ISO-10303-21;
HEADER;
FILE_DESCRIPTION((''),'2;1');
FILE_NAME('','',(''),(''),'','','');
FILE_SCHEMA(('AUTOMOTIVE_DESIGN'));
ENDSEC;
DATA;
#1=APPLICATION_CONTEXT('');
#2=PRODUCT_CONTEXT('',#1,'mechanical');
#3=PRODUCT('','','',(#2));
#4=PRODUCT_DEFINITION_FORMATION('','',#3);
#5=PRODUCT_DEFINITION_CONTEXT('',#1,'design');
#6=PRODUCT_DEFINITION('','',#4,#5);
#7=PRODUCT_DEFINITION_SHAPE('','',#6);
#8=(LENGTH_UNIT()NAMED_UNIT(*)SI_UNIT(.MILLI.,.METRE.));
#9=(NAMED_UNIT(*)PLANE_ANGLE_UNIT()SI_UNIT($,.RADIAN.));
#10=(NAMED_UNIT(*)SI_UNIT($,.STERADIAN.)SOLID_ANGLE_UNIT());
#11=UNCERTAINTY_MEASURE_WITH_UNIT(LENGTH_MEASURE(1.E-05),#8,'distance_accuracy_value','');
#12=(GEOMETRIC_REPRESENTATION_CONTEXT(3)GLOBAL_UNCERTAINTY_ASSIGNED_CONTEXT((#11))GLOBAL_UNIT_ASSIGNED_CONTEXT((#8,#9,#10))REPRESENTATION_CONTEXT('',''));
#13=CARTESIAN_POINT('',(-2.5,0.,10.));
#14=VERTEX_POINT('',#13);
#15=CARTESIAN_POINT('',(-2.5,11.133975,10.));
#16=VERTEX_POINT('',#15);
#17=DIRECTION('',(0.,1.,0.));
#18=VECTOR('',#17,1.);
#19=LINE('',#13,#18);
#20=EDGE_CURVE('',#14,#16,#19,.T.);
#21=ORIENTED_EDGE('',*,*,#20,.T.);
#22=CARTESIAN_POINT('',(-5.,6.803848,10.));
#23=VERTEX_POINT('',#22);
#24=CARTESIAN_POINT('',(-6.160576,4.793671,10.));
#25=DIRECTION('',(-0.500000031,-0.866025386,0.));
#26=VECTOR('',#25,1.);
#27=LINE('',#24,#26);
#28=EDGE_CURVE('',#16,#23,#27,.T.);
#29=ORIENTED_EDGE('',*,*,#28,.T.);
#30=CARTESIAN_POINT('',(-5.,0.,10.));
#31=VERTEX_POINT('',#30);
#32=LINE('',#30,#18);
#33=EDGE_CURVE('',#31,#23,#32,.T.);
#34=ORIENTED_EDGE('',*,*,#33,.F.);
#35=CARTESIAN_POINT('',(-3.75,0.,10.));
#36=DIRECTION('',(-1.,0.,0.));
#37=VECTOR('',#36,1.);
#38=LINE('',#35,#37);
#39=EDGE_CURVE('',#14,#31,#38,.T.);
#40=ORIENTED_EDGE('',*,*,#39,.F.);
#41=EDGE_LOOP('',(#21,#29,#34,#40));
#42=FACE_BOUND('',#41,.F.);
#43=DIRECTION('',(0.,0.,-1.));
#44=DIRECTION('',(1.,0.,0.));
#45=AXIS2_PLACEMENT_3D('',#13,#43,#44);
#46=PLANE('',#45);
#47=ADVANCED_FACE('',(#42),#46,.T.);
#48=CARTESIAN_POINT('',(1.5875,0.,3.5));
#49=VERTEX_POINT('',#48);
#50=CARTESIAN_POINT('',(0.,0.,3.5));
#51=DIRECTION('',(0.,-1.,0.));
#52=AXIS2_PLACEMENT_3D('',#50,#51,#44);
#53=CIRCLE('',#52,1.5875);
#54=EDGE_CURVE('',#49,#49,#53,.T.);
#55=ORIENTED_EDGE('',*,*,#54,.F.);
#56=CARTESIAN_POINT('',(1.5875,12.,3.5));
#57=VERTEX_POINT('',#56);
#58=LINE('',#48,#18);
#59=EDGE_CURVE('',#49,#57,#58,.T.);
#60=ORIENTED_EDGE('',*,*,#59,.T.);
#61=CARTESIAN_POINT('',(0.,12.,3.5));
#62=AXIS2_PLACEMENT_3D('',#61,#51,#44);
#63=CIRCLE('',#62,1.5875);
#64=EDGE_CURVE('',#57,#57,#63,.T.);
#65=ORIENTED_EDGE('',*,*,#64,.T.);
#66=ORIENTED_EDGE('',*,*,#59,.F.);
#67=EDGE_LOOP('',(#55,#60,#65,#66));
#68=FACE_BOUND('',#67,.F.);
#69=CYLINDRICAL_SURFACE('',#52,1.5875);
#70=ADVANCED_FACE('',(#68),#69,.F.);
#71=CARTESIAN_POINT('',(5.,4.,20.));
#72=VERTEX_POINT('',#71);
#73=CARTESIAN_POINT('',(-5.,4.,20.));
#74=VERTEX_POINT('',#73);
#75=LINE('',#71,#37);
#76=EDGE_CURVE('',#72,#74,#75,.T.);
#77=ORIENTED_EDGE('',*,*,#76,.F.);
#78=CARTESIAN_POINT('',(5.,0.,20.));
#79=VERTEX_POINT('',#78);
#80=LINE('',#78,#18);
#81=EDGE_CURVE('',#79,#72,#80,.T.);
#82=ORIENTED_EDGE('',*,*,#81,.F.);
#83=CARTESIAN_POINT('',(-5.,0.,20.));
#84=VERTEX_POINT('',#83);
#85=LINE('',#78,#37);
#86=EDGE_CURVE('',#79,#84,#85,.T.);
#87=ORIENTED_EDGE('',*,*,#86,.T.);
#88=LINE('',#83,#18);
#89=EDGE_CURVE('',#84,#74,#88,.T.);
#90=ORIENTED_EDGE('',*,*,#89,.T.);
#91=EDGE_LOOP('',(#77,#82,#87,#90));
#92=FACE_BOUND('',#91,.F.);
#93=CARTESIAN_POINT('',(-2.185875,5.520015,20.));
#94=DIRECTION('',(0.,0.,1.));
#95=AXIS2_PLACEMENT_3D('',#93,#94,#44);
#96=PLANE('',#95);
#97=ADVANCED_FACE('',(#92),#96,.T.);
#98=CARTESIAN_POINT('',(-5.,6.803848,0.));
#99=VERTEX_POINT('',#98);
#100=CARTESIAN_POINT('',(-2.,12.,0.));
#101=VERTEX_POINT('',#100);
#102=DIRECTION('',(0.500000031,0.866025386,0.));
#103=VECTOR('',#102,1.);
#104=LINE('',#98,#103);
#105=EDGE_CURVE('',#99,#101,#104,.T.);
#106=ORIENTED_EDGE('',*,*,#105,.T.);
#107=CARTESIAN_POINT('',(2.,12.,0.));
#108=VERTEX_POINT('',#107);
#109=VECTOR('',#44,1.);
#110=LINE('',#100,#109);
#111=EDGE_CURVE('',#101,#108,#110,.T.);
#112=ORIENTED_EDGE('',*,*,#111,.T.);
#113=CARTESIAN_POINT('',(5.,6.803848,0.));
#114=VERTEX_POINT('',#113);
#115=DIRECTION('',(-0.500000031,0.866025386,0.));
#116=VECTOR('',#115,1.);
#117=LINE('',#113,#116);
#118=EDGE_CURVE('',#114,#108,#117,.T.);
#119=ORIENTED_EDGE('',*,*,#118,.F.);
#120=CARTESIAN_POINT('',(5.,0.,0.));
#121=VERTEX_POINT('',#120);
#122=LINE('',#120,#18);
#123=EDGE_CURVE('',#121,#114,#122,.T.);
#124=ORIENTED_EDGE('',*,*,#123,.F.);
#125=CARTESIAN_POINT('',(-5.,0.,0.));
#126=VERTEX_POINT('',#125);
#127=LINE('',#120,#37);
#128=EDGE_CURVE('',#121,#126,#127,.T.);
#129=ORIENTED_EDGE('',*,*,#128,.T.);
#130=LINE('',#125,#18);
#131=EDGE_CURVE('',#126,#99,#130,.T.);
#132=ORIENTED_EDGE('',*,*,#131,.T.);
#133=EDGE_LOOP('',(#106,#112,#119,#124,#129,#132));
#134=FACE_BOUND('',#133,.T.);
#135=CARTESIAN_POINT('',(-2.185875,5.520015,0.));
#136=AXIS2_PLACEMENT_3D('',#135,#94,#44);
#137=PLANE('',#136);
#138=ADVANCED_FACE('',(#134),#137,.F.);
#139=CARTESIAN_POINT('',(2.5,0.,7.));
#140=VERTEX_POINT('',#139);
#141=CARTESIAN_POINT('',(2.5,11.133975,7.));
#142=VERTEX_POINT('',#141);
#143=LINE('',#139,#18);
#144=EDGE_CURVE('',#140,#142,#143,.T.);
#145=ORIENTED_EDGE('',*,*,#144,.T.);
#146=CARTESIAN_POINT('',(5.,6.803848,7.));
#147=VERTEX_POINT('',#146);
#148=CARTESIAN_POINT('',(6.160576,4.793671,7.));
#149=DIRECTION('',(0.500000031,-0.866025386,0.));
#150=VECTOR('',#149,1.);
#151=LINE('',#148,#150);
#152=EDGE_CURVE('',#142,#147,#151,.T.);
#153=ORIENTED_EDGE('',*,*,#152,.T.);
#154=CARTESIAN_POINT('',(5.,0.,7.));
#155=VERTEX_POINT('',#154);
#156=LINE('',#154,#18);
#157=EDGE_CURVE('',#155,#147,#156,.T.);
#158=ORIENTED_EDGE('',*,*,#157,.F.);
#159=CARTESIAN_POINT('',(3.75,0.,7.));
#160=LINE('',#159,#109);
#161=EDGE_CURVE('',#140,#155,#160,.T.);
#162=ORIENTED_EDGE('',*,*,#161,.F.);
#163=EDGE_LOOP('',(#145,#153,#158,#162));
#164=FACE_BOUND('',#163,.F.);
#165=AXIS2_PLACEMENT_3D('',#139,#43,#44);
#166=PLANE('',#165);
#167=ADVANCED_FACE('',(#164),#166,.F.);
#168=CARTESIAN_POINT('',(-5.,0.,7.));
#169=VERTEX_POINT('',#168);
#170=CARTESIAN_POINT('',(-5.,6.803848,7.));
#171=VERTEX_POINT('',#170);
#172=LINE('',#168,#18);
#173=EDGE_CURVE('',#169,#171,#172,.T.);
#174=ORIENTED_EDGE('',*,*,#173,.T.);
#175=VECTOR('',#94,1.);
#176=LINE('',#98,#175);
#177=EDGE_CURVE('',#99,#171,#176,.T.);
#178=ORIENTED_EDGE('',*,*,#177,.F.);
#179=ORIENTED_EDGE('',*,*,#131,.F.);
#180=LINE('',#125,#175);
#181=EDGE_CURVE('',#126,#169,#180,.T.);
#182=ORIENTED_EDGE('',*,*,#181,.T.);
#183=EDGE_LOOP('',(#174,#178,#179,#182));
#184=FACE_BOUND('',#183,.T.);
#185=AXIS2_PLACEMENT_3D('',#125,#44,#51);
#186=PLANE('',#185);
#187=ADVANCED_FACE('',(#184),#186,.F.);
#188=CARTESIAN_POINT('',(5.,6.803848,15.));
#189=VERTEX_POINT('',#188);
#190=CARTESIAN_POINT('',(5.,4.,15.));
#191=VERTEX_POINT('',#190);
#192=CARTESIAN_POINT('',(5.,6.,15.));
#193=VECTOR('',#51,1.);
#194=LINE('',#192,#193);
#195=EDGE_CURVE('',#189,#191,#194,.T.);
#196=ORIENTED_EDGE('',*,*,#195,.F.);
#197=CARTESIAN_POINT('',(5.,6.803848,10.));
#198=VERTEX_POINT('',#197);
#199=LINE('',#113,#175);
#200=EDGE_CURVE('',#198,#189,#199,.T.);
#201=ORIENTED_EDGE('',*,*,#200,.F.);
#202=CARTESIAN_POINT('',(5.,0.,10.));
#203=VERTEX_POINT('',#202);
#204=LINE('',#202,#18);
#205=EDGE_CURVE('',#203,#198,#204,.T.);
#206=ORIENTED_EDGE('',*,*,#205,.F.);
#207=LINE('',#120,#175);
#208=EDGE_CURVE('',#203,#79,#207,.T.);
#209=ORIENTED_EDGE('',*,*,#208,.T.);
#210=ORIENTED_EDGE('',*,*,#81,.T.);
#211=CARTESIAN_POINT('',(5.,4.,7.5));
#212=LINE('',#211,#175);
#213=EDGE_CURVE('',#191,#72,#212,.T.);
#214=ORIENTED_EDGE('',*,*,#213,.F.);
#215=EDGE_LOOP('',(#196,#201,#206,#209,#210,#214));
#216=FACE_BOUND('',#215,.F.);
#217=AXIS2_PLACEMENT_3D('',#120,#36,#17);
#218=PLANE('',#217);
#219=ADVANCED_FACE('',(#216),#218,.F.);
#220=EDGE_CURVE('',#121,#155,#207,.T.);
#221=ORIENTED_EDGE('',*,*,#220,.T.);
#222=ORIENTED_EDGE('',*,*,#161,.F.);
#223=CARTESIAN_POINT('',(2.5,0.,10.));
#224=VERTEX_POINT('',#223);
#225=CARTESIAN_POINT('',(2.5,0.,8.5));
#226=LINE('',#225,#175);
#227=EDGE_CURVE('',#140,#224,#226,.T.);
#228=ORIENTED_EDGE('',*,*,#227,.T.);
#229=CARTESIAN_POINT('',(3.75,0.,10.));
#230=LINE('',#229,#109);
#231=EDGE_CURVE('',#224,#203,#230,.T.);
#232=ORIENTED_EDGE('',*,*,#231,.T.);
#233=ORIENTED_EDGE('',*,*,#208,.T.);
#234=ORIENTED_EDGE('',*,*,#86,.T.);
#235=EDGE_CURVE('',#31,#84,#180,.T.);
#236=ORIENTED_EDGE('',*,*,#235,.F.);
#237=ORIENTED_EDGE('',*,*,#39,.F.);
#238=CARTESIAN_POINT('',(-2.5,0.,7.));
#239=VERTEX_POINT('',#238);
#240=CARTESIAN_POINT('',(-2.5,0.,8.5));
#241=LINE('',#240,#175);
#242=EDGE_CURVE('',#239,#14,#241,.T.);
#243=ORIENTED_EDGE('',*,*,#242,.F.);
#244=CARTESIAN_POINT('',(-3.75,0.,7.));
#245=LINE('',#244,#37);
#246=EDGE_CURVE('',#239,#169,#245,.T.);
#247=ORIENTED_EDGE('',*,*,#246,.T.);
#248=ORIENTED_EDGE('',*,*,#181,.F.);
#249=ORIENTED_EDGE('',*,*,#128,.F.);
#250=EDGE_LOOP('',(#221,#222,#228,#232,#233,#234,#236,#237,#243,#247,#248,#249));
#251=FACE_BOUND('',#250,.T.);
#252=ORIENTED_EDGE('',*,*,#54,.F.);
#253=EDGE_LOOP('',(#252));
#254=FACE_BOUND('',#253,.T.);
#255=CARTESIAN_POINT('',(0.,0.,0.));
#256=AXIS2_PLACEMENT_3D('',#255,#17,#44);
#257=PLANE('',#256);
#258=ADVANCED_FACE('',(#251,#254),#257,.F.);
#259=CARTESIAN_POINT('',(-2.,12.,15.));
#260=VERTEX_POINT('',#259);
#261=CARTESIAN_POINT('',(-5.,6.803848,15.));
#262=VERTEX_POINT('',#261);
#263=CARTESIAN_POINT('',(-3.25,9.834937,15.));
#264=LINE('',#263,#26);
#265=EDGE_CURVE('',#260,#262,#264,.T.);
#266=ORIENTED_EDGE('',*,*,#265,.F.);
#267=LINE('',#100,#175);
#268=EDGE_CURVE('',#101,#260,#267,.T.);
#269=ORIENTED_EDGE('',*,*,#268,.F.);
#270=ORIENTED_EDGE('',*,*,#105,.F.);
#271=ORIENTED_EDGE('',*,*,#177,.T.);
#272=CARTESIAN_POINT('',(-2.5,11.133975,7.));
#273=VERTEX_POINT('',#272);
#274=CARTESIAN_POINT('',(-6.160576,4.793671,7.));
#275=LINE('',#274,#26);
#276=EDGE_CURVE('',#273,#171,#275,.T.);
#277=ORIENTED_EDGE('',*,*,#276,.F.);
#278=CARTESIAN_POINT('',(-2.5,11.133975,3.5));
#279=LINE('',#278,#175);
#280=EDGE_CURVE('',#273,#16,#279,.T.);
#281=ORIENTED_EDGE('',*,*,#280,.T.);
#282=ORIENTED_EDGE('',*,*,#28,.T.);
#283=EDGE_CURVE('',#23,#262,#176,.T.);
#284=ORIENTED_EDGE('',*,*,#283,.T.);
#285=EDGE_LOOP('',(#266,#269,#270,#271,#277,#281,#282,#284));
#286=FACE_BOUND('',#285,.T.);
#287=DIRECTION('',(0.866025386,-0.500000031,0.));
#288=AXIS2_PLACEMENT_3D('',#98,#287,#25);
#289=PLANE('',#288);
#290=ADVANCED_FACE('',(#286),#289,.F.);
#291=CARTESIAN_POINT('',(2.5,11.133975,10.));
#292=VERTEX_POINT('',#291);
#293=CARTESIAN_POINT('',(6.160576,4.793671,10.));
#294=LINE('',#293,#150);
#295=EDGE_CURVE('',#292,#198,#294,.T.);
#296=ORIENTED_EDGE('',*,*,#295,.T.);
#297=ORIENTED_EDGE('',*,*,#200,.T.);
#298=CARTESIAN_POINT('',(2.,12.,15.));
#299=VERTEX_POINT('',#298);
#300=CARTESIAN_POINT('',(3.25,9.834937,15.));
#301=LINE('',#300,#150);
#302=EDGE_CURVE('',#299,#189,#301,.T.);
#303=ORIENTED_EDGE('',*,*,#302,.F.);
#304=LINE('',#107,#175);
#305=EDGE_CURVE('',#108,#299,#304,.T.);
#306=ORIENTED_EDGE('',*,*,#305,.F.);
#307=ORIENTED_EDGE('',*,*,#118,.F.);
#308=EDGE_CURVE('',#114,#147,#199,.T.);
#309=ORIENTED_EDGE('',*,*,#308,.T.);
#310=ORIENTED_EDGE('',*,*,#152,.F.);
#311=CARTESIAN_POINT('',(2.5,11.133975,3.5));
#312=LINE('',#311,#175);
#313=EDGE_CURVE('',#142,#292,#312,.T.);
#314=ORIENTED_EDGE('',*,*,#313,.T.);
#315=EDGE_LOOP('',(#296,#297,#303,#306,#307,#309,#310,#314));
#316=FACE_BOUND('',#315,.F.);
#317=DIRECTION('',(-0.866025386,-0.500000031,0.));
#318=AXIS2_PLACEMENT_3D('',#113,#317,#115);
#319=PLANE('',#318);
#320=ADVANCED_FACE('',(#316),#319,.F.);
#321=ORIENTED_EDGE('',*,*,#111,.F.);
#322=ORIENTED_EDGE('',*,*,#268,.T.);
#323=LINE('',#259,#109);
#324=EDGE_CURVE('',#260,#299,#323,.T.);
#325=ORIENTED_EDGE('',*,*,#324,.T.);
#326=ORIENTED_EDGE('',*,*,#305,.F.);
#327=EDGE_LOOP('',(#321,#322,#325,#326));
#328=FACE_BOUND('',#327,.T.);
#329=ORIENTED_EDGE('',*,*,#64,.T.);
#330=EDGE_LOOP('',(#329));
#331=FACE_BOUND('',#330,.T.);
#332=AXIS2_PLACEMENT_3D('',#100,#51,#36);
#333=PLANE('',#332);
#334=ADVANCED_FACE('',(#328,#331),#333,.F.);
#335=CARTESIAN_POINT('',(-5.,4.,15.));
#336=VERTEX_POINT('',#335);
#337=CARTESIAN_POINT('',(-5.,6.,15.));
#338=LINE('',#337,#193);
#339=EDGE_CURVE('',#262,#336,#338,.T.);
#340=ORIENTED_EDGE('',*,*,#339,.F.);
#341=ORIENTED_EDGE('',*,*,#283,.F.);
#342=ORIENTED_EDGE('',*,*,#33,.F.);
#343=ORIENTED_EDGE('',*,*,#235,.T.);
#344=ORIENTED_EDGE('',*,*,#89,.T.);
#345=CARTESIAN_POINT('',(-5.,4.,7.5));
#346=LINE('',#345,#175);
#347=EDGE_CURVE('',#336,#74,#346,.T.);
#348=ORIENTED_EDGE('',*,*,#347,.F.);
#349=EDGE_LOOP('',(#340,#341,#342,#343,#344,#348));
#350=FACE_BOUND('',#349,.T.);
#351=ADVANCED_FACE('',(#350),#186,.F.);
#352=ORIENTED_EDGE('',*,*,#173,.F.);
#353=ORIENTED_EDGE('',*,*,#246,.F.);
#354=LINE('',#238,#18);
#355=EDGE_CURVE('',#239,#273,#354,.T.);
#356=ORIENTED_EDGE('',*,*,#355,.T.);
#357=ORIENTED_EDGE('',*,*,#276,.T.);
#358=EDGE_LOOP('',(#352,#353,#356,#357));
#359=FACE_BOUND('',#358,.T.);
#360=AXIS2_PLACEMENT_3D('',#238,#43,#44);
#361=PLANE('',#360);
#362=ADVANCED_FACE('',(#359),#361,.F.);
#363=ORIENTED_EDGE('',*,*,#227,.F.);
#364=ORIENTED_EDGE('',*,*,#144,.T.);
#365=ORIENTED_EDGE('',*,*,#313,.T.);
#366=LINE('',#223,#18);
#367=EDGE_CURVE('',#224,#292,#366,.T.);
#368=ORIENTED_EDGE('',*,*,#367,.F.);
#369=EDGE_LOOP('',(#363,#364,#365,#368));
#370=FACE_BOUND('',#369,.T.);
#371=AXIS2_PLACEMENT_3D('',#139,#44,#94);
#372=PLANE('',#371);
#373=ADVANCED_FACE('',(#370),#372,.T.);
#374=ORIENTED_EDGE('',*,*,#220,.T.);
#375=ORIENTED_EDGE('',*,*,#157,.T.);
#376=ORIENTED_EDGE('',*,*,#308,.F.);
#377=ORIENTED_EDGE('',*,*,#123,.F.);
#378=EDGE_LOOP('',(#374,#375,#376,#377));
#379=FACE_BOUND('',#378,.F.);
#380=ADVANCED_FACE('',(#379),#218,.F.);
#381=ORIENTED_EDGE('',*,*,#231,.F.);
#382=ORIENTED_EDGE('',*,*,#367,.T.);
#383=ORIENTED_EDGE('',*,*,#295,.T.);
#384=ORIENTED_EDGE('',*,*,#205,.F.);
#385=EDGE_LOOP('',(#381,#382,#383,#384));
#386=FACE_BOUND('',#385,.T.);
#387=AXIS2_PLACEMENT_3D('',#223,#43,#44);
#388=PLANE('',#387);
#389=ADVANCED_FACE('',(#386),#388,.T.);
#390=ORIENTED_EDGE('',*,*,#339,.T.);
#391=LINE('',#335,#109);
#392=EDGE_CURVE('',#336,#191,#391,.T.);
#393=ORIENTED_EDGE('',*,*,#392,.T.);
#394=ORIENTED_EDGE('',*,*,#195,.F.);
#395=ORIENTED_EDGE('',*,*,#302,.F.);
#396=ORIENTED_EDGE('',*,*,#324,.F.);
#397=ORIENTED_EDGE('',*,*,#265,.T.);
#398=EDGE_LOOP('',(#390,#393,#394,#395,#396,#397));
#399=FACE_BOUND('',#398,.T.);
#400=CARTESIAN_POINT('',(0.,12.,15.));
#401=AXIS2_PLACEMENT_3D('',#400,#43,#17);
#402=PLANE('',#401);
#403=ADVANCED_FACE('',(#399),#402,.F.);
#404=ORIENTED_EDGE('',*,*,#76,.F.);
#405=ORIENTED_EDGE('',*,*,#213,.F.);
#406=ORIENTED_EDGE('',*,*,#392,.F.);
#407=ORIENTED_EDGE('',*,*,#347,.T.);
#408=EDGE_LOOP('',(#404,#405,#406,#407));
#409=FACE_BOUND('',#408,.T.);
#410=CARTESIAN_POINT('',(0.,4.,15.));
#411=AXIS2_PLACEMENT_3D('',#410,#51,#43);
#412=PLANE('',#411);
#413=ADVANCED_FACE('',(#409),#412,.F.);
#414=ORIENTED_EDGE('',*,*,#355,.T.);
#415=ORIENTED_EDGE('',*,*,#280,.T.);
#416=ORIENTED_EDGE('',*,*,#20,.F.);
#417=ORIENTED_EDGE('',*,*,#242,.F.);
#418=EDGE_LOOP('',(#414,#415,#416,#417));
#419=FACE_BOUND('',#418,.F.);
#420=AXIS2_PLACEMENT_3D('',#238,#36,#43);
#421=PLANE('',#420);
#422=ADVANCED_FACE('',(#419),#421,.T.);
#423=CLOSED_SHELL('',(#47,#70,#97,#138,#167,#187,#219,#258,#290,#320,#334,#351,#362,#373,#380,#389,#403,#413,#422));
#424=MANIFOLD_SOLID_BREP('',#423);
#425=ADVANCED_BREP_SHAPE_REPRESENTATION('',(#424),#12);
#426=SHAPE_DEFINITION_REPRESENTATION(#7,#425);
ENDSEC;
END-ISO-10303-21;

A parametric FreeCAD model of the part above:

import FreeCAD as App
import Part
import Sketcher

V = App.Vector
Q = App.Units.Quantity

doc = App.newDocument("Part")
body = doc.addObject("PartDesign::Body", "Body")

# Sketch on XY plane
sketch1 = doc.addObject("Sketcher::SketchObject", "Sketch")
body.addObject(sketch1)
sketch1.AttachmentSupport = (doc.XY_Plane, [""])
sketch1.MapMode = "FlatFace"
sketch1.addGeometry(Part.LineSegment(V(0, 12, 0), V(0, 0, 0)), False)
sketch1.addGeometry(Part.LineSegment(V(0, 0, 0), V(5, 0, 0)), False)
sketch1.addGeometry(Part.LineSegment(V(5, 0, 0), V(5, 6.8, 0)), False)
sketch1.addGeometry(Part.LineSegment(V(5, 6.8, 0), V(2, 12, 0)), False)
sketch1.addGeometry(Part.LineSegment(V(2, 12, 0), V(0, 12, 0)), False)
sketch1.addConstraint(Sketcher.Constraint("Coincident", 0, 2, 1, 1))
sketch1.addConstraint(Sketcher.Constraint("Coincident", 1, 2, 2, 1))
sketch1.addConstraint(Sketcher.Constraint("Coincident", 2, 2, 3, 1))
sketch1.addConstraint(Sketcher.Constraint("Coincident", 3, 2, 4, 1))
sketch1.addConstraint(Sketcher.Constraint("Coincident", 4, 2, 0, 1))
sketch1.addConstraint(Sketcher.Constraint("Vertical", 0))
sketch1.addConstraint(Sketcher.Constraint("Horizontal", 1))
sketch1.addConstraint(Sketcher.Constraint("Vertical", 2))
sketch1.addConstraint(Sketcher.Constraint("Horizontal", 4))
sketch1.addConstraint(Sketcher.Constraint("Coincident", 0, 2, -1, 1))
sketch1.addConstraint(Sketcher.Constraint("DistanceX", 1, 1, 1, 2, Q("5 mm")))
sketch1.addConstraint(Sketcher.Constraint("DistanceX", 4, 2, 4, 1, Q("2 mm")))
sketch1.addConstraint(Sketcher.Constraint("DistanceY", 0, 2, 0, 1, Q("12 mm")))
sketch1.addConstraint(Sketcher.Constraint("Angle", 3, Q("120.000002 deg")))
pad1 = doc.addObject("PartDesign::Pad", "Pad")
body.addObject(pad1)
pad1.Profile = sketch1
pad1.Length = 20

# Sketch on YZ plane
sketch2 = doc.addObject("Sketcher::SketchObject", "Sketch001")
body.addObject(sketch2)
sketch2.AttachmentSupport = (doc.YZ_Plane, [""])
sketch2.MapMode = "FlatFace"
sketch2.addGeometry(Part.LineSegment(V(12, 20, 0), V(12, 15, 0)), False)
sketch2.addGeometry(Part.LineSegment(V(12, 15, 0), V(4, 15, 0)), False)
sketch2.addGeometry(Part.LineSegment(V(4, 15, 0), V(4, 20, 0)), False)
sketch2.addGeometry(Part.LineSegment(V(4, 20, 0), V(12, 20, 0)), False)
sketch2.addConstraint(Sketcher.Constraint("Coincident", 0, 2, 1, 1))
sketch2.addConstraint(Sketcher.Constraint("Coincident", 1, 2, 2, 1))
sketch2.addConstraint(Sketcher.Constraint("Coincident", 2, 2, 3, 1))
sketch2.addConstraint(Sketcher.Constraint("Coincident", 3, 2, 0, 1))
sketch2.addConstraint(Sketcher.Constraint("Vertical", 0))
sketch2.addConstraint(Sketcher.Constraint("Horizontal", 1))
sketch2.addConstraint(Sketcher.Constraint("Vertical", 2))
sketch2.addConstraint(Sketcher.Constraint("Horizontal", 3))
sketch2.addConstraint(Sketcher.Constraint("DistanceX", 1, 2, 1, 1, Q("8 mm")))
sketch2.addConstraint(Sketcher.Constraint("DistanceY", 0, 2, 0, 1, Q("5 mm")))
sketch2.addConstraint(Sketcher.Constraint("DistanceX", -1, 1, 0, 2, Q("12 mm")))
sketch2.addConstraint(Sketcher.Constraint("DistanceY", -1, 1, 0, 2, Q("15 mm")))
pocket1 = doc.addObject("PartDesign::Pocket", "Pocket")
body.addObject(pocket1)
pocket1.Profile = sketch2
pocket1.Length = 25.4
pocket1.Reversed = True

# Sketch on XZ plane
sketch3 = doc.addObject("Sketcher::SketchObject", "Sketch002")
body.addObject(sketch3)
sketch3.AttachmentSupport = (doc.XZ_Plane, [""])
sketch3.MapMode = "FlatFace"
sketch3.addGeometry(Part.LineSegment(V(2.5, 10, 0), V(2.5, 7, 0)), False)
sketch3.addGeometry(Part.LineSegment(V(2.5, 7, 0), V(5, 7, 0)), False)
sketch3.addGeometry(Part.LineSegment(V(5, 7, 0), V(5, 10, 0)), False)
sketch3.addGeometry(Part.LineSegment(V(5, 10, 0), V(2.5, 10, 0)), False)
sketch3.addConstraint(Sketcher.Constraint("Coincident", 0, 2, 1, 1))
sketch3.addConstraint(Sketcher.Constraint("Coincident", 1, 2, 2, 1))
sketch3.addConstraint(Sketcher.Constraint("Coincident", 2, 2, 3, 1))
sketch3.addConstraint(Sketcher.Constraint("Coincident", 3, 2, 0, 1))
sketch3.addConstraint(Sketcher.Constraint("Vertical", 0))
sketch3.addConstraint(Sketcher.Constraint("Horizontal", 1))
sketch3.addConstraint(Sketcher.Constraint("Vertical", 2))
sketch3.addConstraint(Sketcher.Constraint("Horizontal", 3))
sketch3.addConstraint(Sketcher.Constraint("DistanceY", 0, 2, 0, 1, Q("3 mm")))
sketch3.addConstraint(Sketcher.Constraint("DistanceX", 1, 1, 1, 2, Q("2.5 mm")))
sketch3.addConstraint(Sketcher.Constraint("DistanceY", -1, 1, 0, 2, Q("7 mm")))
sketch3.addConstraint(Sketcher.Constraint("DistanceX", -1, 1, 1, 2, Q("5 mm")))
pocket2 = doc.addObject("PartDesign::Pocket", "Pocket001")
body.addObject(pocket2)
pocket2.Profile = sketch3
pocket2.Length = 38.1
body2 = doc.addObject("PartDesign::Body", "Body001")
doc.recompute()

body2.BaseFeature = body
doc.recompute()

mirroring = doc.addObject("Part::Mirroring", "Mirroring")
mirroring.Source = body
mirroring.Base = V(0, 5.6, 8.5)
mirroring.Normal = V(-1, 0, 0)
body3 = doc.addObject("PartDesign::Body", "Body002")
body3.BaseFeature = mirroring
boolean = doc.addObject("PartDesign::Boolean", "Boolean")
body2.addObject(boolean)
boolean.Type = "Fuse"
boolean.addObjects([body3])
doc.recompute()

# Sketch on XZ plane
sketch4 = doc.addObject("Sketcher::SketchObject", "Sketch003")
body2.addObject(sketch4)
sketch4.AttachmentSupport = (doc.getObject("XZ_Plane001"), [""])
sketch4.MapMode = "FlatFace"
sketch4.addGeometry(Part.Circle(V(0, 3.5, 0), V(0, 0, 1), 1.6), False)
sketch4.addConstraint(Sketcher.Constraint("PointOnObject", 0, 3, -2))
sketch4.addConstraint(Sketcher.Constraint("Diameter", 0, Q("3.175 mm")))
sketch4.addConstraint(Sketcher.Constraint("DistanceY", -1, 1, 0, 3, Q("3.5 mm")))
pocket3 = doc.addObject("PartDesign::Pocket", "Pocket002")
body2.addObject(pocket3)
pocket3.Profile = sketch4
pocket3.Length = 25.4
mirroring.Visibility = False

doc.recompute()
